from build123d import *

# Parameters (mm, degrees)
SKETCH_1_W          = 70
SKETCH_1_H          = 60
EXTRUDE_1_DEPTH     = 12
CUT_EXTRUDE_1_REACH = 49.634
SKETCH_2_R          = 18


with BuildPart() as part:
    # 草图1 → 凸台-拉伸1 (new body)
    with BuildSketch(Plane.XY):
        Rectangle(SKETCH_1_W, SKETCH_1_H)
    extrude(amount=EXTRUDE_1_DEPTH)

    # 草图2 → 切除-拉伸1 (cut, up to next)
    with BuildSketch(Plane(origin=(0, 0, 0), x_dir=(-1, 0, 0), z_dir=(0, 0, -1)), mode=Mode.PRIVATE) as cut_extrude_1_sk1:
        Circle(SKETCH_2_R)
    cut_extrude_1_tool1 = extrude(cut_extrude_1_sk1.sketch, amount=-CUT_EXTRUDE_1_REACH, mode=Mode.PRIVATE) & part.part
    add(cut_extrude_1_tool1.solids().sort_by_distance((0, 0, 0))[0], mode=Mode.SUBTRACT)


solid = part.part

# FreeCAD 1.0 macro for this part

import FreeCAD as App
import Part
import Sketcher
Q = App.Units.Quantity

doc = App.newDocument("Part")
body = doc.addObject("PartDesign::Body", "Body")

# Sketch on XY plane
sketch1 = body.newObject("Sketcher::SketchObject", "Sketch")
sketch1.AttachmentSupport = (doc.getObject("XY_Plane"), [""])
sketch1.MapMode = "FlatFace"
sketch1.addGeometry([
    Part.LineSegment(App.Vector(-35, 30, 0), App.Vector(-35, -30, 0)),
    Part.LineSegment(App.Vector(-35, -30, 0), App.Vector(35, -30, 0)),
    Part.LineSegment(App.Vector(35, -30, 0), App.Vector(35, 30, 0)),
    Part.LineSegment(App.Vector(35, 30, 0), App.Vector(-35, 30, 0)),
], False)
sketch1.addConstraint([
    Sketcher.Constraint("Coincident", 0, 2, 1, 1),
    Sketcher.Constraint("Coincident", 1, 2, 2, 1),
    Sketcher.Constraint("Coincident", 2, 2, 3, 1),
    Sketcher.Constraint("Coincident", 3, 2, 0, 1),
    Sketcher.Constraint("Vertical", 0),
    Sketcher.Constraint("Horizontal", 1),
    Sketcher.Constraint("Vertical", 2),
    Sketcher.Constraint("Horizontal", 3),
    Sketcher.Constraint("Symmetric", 0, 2, 2, 2, -1, 1),
    Sketcher.Constraint("DistanceX", 1, 1, 1, 2, Q("70 mm")),
    Sketcher.Constraint("DistanceY", 0, 2, 0, 1, Q("60 mm")),
])
pad1 = body.newObject("PartDesign::Pad", "Pad")
pad1.Profile = sketch1
pad1.Length = 12

# Sketch on XY plane
sketch2 = body.newObject("Sketcher::SketchObject", "Sketch001")
sketch2.AttachmentSupport = (doc.getObject("XY_Plane"), [""])
sketch2.MapMode = "FlatFace"
sketch2.addGeometry(Part.Circle(App.Vector(0, 0, 0), App.Vector(0, 0, 1), 18), False)
sketch2.addConstraint([
    Sketcher.Constraint("Coincident", 0, 3, -1, 1),
    Sketcher.Constraint("Diameter", 0, Q("36 mm")),
])
pocket1 = body.newObject("PartDesign::Pocket", "Pocket")
pocket1.Profile = sketch2
pocket1.Type = "UpToFirst"
pocket1.Reversed = True

doc.recompute()
